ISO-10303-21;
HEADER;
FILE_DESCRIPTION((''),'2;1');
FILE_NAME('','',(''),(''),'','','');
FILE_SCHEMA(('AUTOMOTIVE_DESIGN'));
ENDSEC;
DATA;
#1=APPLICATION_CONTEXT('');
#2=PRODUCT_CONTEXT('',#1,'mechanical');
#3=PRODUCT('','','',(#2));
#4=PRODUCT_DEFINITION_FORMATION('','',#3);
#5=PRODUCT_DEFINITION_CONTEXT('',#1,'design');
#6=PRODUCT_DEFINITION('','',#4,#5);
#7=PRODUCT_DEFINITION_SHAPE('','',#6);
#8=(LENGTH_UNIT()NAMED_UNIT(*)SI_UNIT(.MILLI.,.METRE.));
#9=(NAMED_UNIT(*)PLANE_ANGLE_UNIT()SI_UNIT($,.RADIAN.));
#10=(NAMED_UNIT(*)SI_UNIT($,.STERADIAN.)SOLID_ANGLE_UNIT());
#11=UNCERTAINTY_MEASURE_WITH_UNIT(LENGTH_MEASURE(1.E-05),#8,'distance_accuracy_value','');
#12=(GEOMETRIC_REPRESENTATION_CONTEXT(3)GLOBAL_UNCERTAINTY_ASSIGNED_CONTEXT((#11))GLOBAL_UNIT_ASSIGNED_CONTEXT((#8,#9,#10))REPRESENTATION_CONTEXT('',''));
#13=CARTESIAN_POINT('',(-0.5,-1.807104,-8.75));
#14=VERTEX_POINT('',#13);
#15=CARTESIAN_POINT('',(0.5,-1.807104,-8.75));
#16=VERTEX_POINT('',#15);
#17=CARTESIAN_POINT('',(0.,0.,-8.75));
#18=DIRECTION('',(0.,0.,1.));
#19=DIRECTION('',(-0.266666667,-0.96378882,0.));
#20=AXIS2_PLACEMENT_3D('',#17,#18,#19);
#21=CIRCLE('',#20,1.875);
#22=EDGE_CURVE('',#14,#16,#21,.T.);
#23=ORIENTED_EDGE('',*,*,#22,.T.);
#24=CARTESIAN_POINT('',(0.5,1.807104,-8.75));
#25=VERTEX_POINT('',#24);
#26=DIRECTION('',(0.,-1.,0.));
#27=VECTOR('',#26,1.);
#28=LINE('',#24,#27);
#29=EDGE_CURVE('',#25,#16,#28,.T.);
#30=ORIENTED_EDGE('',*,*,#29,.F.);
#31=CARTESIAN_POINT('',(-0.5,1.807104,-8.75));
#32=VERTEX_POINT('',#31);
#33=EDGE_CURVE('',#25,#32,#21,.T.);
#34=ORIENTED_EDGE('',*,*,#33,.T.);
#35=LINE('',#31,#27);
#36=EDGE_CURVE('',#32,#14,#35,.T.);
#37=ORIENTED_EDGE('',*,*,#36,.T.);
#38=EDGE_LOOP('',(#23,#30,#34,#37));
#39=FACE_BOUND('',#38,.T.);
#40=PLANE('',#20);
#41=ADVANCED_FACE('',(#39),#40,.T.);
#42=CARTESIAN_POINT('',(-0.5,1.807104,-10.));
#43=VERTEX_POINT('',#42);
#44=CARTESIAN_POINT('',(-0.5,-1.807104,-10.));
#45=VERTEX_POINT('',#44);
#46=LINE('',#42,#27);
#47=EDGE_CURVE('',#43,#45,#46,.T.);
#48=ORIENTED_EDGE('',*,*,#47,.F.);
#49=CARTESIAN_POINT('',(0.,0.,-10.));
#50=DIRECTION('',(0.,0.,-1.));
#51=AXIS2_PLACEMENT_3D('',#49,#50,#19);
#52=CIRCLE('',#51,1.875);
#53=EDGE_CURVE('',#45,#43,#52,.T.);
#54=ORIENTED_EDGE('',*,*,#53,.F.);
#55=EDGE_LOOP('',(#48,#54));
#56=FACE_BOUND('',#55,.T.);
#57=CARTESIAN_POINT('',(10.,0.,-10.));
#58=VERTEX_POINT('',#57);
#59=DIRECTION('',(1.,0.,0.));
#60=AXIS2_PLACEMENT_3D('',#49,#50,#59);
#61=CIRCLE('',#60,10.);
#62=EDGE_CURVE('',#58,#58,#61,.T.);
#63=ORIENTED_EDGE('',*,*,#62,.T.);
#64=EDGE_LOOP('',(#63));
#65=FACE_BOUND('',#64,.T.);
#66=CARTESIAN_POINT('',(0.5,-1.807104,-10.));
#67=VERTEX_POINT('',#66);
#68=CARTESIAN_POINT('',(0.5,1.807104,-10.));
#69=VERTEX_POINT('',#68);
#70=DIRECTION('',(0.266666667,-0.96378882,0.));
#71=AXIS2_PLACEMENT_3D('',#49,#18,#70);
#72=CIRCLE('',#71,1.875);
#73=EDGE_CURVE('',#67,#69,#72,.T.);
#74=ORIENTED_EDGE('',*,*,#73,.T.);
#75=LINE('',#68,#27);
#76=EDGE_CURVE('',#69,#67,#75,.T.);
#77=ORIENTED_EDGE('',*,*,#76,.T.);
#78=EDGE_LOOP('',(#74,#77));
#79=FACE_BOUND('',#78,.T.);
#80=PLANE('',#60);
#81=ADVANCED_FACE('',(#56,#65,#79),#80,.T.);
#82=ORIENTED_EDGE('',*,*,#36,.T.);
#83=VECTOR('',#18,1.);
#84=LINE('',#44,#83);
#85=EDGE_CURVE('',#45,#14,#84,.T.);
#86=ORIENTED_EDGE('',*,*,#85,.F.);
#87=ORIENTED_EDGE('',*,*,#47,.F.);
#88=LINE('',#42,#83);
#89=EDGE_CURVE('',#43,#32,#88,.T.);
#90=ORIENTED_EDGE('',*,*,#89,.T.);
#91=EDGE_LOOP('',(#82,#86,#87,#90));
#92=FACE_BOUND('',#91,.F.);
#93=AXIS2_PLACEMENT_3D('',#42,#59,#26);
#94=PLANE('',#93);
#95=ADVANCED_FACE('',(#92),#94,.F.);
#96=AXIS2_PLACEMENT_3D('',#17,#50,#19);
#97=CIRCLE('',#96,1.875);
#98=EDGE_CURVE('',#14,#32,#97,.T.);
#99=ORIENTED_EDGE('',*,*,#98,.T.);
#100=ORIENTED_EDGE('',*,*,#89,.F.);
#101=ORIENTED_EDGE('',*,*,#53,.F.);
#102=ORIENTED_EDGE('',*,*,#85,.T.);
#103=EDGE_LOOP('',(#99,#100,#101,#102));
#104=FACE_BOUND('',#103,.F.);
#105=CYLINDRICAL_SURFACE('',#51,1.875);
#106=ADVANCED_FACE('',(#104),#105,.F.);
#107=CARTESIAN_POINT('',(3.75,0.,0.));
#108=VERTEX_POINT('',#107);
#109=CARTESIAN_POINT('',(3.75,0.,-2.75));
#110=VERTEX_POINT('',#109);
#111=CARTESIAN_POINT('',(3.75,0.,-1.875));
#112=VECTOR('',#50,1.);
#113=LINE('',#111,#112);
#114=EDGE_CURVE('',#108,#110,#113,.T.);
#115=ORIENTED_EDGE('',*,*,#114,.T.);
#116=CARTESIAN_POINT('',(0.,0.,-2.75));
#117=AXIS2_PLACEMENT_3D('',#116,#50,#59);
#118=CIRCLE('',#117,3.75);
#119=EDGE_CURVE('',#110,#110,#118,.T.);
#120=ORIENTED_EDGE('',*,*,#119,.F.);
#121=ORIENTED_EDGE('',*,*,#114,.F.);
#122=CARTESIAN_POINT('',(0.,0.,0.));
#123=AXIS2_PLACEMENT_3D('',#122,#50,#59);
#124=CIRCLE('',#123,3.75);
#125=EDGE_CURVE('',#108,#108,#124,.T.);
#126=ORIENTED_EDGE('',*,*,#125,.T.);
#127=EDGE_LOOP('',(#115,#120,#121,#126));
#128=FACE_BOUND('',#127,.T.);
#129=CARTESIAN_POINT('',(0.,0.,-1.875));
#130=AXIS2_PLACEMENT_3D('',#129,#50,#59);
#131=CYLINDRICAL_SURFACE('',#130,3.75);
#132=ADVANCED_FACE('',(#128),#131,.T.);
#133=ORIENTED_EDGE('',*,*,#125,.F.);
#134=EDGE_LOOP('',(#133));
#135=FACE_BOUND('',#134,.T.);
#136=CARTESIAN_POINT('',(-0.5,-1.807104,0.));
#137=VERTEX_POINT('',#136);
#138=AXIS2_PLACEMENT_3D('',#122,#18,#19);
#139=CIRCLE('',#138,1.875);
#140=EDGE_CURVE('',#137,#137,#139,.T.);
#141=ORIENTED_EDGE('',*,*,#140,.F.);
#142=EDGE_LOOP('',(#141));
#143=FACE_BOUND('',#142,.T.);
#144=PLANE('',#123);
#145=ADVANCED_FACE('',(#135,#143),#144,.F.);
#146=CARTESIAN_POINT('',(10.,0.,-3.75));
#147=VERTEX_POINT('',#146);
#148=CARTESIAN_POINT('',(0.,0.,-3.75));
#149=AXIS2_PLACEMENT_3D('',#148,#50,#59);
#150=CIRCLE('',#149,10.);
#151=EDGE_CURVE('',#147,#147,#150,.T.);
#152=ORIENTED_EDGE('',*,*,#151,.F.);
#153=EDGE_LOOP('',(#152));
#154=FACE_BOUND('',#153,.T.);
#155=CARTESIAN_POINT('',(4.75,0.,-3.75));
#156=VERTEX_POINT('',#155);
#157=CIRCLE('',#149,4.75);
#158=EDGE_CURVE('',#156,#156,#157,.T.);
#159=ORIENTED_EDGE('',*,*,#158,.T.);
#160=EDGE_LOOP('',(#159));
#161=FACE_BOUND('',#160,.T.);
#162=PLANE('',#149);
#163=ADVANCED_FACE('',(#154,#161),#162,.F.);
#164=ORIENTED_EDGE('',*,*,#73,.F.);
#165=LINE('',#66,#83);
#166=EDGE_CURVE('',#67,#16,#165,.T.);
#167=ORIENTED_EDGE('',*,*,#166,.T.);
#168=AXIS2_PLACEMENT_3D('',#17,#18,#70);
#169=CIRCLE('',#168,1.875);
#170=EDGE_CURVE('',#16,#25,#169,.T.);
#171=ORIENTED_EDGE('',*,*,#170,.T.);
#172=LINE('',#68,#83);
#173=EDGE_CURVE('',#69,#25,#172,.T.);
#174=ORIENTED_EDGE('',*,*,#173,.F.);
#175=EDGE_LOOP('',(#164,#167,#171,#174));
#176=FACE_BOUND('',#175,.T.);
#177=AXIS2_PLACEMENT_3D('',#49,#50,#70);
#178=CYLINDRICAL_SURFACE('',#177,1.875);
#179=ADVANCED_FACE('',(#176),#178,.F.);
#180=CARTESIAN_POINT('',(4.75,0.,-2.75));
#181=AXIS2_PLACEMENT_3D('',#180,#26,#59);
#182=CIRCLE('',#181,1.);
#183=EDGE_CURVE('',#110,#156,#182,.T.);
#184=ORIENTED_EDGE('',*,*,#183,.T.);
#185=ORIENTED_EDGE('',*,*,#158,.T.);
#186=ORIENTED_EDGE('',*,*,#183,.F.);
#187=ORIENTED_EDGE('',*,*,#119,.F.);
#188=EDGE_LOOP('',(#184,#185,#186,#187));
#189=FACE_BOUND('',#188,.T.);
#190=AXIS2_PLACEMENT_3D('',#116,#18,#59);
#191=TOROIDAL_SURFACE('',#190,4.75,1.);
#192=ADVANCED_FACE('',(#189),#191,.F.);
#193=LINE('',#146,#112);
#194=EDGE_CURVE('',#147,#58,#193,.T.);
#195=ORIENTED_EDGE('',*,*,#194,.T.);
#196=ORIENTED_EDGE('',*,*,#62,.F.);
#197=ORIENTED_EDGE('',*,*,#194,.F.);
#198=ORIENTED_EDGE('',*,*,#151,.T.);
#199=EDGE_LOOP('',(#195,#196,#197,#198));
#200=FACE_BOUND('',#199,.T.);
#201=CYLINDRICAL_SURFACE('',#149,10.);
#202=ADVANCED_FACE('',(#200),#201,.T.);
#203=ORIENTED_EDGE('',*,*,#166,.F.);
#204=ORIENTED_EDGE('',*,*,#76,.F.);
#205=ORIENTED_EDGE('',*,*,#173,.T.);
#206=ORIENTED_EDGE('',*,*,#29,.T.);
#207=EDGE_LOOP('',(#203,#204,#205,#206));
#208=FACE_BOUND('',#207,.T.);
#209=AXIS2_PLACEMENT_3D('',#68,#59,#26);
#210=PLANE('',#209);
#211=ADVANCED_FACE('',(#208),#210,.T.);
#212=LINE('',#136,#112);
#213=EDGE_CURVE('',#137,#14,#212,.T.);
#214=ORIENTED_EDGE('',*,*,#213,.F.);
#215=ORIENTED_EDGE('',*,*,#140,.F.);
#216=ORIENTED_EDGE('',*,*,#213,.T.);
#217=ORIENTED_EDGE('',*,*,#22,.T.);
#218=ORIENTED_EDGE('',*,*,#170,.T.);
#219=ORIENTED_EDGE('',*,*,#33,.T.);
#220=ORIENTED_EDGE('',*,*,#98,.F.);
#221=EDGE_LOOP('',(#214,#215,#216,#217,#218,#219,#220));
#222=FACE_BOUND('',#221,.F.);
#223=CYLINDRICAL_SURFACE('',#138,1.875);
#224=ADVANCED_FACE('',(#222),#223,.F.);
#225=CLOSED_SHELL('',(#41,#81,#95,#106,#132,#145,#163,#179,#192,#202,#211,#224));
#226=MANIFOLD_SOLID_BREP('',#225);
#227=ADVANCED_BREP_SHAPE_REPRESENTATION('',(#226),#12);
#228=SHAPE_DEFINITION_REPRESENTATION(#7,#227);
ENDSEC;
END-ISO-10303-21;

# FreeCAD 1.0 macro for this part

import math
import FreeCAD as App
import Part
import Sketcher
from FreeCAD import Vector
Q = App.Units.Quantity


def edges_at(feature, points):
    """Names of the edges that pass closest to the given points."""
    edges = feature.Shape.Edges
    near = lambda p: min(range(len(edges)), key=lambda i: edges[i].distToShape(Part.Vertex(*p))[0])
    return sorted({f"Edge{near(p) + 1}" for p in points})

doc = App.newDocument("Part")
body = doc.addObject("PartDesign::Body", "Body")

# Sketch on XZ plane
sketch1 = doc.addObject("Sketcher::SketchObject", "Sketch")
body.addObject(sketch1)
sketch1.AttachmentSupport = (doc.XZ_Plane, [""])
sketch1.MapMode = "FlatFace"
sketch1.addGeometry(Part.LineSegment(Vector(0, 0, 0), Vector(3.75, 0, 0)), False)
sketch1.addGeometry(Part.LineSegment(Vector(3.75, 0, 0), Vector(3.75, -3.75, 0)), False)
sketch1.addGeometry(Part.LineSegment(Vector(3.75, -3.75, 0), Vector(10, -3.75, 0)), False)
sketch1.addGeometry(Part.LineSegment(Vector(10, -3.75, 0), Vector(10, -10, 0)), False)
sketch1.addGeometry(Part.LineSegment(Vector(10, -10, 0), Vector(0, -10, 0)), False)
sketch1.addGeometry(Part.LineSegment(Vector(0, -10, 0), Vector(0, 0, 0)), False)
sketch1.addConstraint(Sketcher.Constraint("Coincident", 0, 2, 1, 1))
sketch1.addConstraint(Sketcher.Constraint("Coincident", 1, 2, 2, 1))
sketch1.addConstraint(Sketcher.Constraint("Coincident", 2, 2, 3, 1))
sketch1.addConstraint(Sketcher.Constraint("Coincident", 3, 2, 4, 1))
sketch1.addConstraint(Sketcher.Constraint("Coincident", 4, 2, 5, 1))
sketch1.addConstraint(Sketcher.Constraint("Coincident", 5, 2, 0, 1))
sketch1.addConstraint(Sketcher.Constraint("Horizontal", 0))
sketch1.addConstraint(Sketcher.Constraint("Vertical", 1))
sketch1.addConstraint(Sketcher.Constraint("Horizontal", 2))
sketch1.addConstraint(Sketcher.Constraint("Vertical", 3))
sketch1.addConstraint(Sketcher.Constraint("Horizontal", 4))
sketch1.addConstraint(Sketcher.Constraint("Vertical", 5))
sketch1.addConstraint(Sketcher.Constraint("Coincident", 5, 2, -1, 1))
sketch1.addConstraint(Sketcher.Constraint("Equal", 0, 1))
sketch1.addConstraint(Sketcher.Constraint("Equal", 2, 3))
sketch1.addConstraint(Sketcher.Constraint("DistanceX", 4, 2, 4, 1, Q("10 mm")))
sketch1.addConstraint(Sketcher.Constraint("DistanceX", 0, 1, 0, 2, Q("3.75 mm")))
revolution = doc.addObject("PartDesign::Revolution", "Revolution")
body.addObject(revolution)
revolution.Profile = sketch1
revolution.ReferenceAxis = (sketch1, ["V_Axis"])
revolution.Angle = 360

# Sketch on XY plane
sketch2 = doc.addObject("Sketcher::SketchObject", "Sketch001")
body.addObject(sketch2)
sketch2.AttachmentSupport = (doc.XY_Plane, [""])
sketch2.MapMode = "FlatFace"
sketch2.AttachmentOffset = App.Placement(Vector(0, 0, -10), App.Rotation())
sketch2.addGeometry(Part.LineSegment(Vector(-0.5, 1.807104, 0), Vector(-0.5, -1.807104, 0)), False)
sketch2.addGeometry(Part.ArcOfCircle(Part.Circle(Vector(0, 0, 0), Vector(0, 0, 1), 1.875), math.radians(105.46601), math.radians(254.53399)), False)
sketch2.addGeometry(Part.LineSegment(Vector(0.5, -1.807104, 0), Vector(0.5, 1.807104, 0)), False)
sketch2.addGeometry(Part.ArcOfCircle(Part.Circle(Vector(0, 0, 0), Vector(0, 0, 1), 1.875), math.radians(-74.53399), math.radians(74.53399)), False)
sketch2.addConstraint(Sketcher.Constraint("Coincident", 0, 1, 1, 1))
sketch2.addConstraint(Sketcher.Constraint("Coincident", 1, 2, 0, 2))
sketch2.addConstraint(Sketcher.Constraint("Coincident", 2, 1, 3, 1))
sketch2.addConstraint(Sketcher.Constraint("Coincident", 3, 2, 2, 2))
sketch2.addConstraint(Sketcher.Constraint("Vertical", 0))
sketch2.addConstraint(Sketcher.Constraint("Vertical", 2))
sketch2.addConstraint(Sketcher.Constraint("Coincident", 1, 3, -1, 1))
sketch2.addConstraint(Sketcher.Constraint("Coincident", 3, 3, -1, 1))
sketch2.addConstraint(Sketcher.Constraint("Equal", 1, 3))
sketch2.addConstraint(Sketcher.Constraint("Horizontal", 1, 2, 2, 1))
sketch2.addConstraint(Sketcher.Constraint("Radius", 1, Q("1.875 mm")))
sketch2.addConstraint(Sketcher.Constraint("DistanceX", 1, 2, 2, 1, Q("1 mm")))
pocket1 = doc.addObject("PartDesign::Pocket", "Pocket")
body.addObject(pocket1)
pocket1.Profile = sketch2
pocket1.Length = 1.25
pocket1.Reversed = True
doc.recompute()

fillet = doc.addObject("PartDesign::Fillet", "Fillet")
body.addObject(fillet)
fillet.Base = (pocket1, edges_at(pocket1, [(-3.75, 0, -3.75)]))
fillet.Radius = 1

# Sketch on XY plane
sketch3 = doc.addObject("Sketcher::SketchObject", "Sketch002")
body.addObject(sketch3)
sketch3.AttachmentSupport = (doc.XY_Plane, [""])
sketch3.MapMode = "FlatFace"
sketch3.addGeometry(Part.Circle(Vector(0, 0, 0), Vector(0, 0, 1), 1.875), False)
sketch3.addConstraint(Sketcher.Constraint("Coincident", 0, 3, -1, 1))
sketch3.addConstraint(Sketcher.Constraint("Diameter", 0, Q("3.75 mm")))
pocket2 = doc.addObject("PartDesign::Pocket", "Pocket001")
body.addObject(pocket2)
pocket2.Profile = sketch3
pocket2.Length = 8.75

doc.recompute()
